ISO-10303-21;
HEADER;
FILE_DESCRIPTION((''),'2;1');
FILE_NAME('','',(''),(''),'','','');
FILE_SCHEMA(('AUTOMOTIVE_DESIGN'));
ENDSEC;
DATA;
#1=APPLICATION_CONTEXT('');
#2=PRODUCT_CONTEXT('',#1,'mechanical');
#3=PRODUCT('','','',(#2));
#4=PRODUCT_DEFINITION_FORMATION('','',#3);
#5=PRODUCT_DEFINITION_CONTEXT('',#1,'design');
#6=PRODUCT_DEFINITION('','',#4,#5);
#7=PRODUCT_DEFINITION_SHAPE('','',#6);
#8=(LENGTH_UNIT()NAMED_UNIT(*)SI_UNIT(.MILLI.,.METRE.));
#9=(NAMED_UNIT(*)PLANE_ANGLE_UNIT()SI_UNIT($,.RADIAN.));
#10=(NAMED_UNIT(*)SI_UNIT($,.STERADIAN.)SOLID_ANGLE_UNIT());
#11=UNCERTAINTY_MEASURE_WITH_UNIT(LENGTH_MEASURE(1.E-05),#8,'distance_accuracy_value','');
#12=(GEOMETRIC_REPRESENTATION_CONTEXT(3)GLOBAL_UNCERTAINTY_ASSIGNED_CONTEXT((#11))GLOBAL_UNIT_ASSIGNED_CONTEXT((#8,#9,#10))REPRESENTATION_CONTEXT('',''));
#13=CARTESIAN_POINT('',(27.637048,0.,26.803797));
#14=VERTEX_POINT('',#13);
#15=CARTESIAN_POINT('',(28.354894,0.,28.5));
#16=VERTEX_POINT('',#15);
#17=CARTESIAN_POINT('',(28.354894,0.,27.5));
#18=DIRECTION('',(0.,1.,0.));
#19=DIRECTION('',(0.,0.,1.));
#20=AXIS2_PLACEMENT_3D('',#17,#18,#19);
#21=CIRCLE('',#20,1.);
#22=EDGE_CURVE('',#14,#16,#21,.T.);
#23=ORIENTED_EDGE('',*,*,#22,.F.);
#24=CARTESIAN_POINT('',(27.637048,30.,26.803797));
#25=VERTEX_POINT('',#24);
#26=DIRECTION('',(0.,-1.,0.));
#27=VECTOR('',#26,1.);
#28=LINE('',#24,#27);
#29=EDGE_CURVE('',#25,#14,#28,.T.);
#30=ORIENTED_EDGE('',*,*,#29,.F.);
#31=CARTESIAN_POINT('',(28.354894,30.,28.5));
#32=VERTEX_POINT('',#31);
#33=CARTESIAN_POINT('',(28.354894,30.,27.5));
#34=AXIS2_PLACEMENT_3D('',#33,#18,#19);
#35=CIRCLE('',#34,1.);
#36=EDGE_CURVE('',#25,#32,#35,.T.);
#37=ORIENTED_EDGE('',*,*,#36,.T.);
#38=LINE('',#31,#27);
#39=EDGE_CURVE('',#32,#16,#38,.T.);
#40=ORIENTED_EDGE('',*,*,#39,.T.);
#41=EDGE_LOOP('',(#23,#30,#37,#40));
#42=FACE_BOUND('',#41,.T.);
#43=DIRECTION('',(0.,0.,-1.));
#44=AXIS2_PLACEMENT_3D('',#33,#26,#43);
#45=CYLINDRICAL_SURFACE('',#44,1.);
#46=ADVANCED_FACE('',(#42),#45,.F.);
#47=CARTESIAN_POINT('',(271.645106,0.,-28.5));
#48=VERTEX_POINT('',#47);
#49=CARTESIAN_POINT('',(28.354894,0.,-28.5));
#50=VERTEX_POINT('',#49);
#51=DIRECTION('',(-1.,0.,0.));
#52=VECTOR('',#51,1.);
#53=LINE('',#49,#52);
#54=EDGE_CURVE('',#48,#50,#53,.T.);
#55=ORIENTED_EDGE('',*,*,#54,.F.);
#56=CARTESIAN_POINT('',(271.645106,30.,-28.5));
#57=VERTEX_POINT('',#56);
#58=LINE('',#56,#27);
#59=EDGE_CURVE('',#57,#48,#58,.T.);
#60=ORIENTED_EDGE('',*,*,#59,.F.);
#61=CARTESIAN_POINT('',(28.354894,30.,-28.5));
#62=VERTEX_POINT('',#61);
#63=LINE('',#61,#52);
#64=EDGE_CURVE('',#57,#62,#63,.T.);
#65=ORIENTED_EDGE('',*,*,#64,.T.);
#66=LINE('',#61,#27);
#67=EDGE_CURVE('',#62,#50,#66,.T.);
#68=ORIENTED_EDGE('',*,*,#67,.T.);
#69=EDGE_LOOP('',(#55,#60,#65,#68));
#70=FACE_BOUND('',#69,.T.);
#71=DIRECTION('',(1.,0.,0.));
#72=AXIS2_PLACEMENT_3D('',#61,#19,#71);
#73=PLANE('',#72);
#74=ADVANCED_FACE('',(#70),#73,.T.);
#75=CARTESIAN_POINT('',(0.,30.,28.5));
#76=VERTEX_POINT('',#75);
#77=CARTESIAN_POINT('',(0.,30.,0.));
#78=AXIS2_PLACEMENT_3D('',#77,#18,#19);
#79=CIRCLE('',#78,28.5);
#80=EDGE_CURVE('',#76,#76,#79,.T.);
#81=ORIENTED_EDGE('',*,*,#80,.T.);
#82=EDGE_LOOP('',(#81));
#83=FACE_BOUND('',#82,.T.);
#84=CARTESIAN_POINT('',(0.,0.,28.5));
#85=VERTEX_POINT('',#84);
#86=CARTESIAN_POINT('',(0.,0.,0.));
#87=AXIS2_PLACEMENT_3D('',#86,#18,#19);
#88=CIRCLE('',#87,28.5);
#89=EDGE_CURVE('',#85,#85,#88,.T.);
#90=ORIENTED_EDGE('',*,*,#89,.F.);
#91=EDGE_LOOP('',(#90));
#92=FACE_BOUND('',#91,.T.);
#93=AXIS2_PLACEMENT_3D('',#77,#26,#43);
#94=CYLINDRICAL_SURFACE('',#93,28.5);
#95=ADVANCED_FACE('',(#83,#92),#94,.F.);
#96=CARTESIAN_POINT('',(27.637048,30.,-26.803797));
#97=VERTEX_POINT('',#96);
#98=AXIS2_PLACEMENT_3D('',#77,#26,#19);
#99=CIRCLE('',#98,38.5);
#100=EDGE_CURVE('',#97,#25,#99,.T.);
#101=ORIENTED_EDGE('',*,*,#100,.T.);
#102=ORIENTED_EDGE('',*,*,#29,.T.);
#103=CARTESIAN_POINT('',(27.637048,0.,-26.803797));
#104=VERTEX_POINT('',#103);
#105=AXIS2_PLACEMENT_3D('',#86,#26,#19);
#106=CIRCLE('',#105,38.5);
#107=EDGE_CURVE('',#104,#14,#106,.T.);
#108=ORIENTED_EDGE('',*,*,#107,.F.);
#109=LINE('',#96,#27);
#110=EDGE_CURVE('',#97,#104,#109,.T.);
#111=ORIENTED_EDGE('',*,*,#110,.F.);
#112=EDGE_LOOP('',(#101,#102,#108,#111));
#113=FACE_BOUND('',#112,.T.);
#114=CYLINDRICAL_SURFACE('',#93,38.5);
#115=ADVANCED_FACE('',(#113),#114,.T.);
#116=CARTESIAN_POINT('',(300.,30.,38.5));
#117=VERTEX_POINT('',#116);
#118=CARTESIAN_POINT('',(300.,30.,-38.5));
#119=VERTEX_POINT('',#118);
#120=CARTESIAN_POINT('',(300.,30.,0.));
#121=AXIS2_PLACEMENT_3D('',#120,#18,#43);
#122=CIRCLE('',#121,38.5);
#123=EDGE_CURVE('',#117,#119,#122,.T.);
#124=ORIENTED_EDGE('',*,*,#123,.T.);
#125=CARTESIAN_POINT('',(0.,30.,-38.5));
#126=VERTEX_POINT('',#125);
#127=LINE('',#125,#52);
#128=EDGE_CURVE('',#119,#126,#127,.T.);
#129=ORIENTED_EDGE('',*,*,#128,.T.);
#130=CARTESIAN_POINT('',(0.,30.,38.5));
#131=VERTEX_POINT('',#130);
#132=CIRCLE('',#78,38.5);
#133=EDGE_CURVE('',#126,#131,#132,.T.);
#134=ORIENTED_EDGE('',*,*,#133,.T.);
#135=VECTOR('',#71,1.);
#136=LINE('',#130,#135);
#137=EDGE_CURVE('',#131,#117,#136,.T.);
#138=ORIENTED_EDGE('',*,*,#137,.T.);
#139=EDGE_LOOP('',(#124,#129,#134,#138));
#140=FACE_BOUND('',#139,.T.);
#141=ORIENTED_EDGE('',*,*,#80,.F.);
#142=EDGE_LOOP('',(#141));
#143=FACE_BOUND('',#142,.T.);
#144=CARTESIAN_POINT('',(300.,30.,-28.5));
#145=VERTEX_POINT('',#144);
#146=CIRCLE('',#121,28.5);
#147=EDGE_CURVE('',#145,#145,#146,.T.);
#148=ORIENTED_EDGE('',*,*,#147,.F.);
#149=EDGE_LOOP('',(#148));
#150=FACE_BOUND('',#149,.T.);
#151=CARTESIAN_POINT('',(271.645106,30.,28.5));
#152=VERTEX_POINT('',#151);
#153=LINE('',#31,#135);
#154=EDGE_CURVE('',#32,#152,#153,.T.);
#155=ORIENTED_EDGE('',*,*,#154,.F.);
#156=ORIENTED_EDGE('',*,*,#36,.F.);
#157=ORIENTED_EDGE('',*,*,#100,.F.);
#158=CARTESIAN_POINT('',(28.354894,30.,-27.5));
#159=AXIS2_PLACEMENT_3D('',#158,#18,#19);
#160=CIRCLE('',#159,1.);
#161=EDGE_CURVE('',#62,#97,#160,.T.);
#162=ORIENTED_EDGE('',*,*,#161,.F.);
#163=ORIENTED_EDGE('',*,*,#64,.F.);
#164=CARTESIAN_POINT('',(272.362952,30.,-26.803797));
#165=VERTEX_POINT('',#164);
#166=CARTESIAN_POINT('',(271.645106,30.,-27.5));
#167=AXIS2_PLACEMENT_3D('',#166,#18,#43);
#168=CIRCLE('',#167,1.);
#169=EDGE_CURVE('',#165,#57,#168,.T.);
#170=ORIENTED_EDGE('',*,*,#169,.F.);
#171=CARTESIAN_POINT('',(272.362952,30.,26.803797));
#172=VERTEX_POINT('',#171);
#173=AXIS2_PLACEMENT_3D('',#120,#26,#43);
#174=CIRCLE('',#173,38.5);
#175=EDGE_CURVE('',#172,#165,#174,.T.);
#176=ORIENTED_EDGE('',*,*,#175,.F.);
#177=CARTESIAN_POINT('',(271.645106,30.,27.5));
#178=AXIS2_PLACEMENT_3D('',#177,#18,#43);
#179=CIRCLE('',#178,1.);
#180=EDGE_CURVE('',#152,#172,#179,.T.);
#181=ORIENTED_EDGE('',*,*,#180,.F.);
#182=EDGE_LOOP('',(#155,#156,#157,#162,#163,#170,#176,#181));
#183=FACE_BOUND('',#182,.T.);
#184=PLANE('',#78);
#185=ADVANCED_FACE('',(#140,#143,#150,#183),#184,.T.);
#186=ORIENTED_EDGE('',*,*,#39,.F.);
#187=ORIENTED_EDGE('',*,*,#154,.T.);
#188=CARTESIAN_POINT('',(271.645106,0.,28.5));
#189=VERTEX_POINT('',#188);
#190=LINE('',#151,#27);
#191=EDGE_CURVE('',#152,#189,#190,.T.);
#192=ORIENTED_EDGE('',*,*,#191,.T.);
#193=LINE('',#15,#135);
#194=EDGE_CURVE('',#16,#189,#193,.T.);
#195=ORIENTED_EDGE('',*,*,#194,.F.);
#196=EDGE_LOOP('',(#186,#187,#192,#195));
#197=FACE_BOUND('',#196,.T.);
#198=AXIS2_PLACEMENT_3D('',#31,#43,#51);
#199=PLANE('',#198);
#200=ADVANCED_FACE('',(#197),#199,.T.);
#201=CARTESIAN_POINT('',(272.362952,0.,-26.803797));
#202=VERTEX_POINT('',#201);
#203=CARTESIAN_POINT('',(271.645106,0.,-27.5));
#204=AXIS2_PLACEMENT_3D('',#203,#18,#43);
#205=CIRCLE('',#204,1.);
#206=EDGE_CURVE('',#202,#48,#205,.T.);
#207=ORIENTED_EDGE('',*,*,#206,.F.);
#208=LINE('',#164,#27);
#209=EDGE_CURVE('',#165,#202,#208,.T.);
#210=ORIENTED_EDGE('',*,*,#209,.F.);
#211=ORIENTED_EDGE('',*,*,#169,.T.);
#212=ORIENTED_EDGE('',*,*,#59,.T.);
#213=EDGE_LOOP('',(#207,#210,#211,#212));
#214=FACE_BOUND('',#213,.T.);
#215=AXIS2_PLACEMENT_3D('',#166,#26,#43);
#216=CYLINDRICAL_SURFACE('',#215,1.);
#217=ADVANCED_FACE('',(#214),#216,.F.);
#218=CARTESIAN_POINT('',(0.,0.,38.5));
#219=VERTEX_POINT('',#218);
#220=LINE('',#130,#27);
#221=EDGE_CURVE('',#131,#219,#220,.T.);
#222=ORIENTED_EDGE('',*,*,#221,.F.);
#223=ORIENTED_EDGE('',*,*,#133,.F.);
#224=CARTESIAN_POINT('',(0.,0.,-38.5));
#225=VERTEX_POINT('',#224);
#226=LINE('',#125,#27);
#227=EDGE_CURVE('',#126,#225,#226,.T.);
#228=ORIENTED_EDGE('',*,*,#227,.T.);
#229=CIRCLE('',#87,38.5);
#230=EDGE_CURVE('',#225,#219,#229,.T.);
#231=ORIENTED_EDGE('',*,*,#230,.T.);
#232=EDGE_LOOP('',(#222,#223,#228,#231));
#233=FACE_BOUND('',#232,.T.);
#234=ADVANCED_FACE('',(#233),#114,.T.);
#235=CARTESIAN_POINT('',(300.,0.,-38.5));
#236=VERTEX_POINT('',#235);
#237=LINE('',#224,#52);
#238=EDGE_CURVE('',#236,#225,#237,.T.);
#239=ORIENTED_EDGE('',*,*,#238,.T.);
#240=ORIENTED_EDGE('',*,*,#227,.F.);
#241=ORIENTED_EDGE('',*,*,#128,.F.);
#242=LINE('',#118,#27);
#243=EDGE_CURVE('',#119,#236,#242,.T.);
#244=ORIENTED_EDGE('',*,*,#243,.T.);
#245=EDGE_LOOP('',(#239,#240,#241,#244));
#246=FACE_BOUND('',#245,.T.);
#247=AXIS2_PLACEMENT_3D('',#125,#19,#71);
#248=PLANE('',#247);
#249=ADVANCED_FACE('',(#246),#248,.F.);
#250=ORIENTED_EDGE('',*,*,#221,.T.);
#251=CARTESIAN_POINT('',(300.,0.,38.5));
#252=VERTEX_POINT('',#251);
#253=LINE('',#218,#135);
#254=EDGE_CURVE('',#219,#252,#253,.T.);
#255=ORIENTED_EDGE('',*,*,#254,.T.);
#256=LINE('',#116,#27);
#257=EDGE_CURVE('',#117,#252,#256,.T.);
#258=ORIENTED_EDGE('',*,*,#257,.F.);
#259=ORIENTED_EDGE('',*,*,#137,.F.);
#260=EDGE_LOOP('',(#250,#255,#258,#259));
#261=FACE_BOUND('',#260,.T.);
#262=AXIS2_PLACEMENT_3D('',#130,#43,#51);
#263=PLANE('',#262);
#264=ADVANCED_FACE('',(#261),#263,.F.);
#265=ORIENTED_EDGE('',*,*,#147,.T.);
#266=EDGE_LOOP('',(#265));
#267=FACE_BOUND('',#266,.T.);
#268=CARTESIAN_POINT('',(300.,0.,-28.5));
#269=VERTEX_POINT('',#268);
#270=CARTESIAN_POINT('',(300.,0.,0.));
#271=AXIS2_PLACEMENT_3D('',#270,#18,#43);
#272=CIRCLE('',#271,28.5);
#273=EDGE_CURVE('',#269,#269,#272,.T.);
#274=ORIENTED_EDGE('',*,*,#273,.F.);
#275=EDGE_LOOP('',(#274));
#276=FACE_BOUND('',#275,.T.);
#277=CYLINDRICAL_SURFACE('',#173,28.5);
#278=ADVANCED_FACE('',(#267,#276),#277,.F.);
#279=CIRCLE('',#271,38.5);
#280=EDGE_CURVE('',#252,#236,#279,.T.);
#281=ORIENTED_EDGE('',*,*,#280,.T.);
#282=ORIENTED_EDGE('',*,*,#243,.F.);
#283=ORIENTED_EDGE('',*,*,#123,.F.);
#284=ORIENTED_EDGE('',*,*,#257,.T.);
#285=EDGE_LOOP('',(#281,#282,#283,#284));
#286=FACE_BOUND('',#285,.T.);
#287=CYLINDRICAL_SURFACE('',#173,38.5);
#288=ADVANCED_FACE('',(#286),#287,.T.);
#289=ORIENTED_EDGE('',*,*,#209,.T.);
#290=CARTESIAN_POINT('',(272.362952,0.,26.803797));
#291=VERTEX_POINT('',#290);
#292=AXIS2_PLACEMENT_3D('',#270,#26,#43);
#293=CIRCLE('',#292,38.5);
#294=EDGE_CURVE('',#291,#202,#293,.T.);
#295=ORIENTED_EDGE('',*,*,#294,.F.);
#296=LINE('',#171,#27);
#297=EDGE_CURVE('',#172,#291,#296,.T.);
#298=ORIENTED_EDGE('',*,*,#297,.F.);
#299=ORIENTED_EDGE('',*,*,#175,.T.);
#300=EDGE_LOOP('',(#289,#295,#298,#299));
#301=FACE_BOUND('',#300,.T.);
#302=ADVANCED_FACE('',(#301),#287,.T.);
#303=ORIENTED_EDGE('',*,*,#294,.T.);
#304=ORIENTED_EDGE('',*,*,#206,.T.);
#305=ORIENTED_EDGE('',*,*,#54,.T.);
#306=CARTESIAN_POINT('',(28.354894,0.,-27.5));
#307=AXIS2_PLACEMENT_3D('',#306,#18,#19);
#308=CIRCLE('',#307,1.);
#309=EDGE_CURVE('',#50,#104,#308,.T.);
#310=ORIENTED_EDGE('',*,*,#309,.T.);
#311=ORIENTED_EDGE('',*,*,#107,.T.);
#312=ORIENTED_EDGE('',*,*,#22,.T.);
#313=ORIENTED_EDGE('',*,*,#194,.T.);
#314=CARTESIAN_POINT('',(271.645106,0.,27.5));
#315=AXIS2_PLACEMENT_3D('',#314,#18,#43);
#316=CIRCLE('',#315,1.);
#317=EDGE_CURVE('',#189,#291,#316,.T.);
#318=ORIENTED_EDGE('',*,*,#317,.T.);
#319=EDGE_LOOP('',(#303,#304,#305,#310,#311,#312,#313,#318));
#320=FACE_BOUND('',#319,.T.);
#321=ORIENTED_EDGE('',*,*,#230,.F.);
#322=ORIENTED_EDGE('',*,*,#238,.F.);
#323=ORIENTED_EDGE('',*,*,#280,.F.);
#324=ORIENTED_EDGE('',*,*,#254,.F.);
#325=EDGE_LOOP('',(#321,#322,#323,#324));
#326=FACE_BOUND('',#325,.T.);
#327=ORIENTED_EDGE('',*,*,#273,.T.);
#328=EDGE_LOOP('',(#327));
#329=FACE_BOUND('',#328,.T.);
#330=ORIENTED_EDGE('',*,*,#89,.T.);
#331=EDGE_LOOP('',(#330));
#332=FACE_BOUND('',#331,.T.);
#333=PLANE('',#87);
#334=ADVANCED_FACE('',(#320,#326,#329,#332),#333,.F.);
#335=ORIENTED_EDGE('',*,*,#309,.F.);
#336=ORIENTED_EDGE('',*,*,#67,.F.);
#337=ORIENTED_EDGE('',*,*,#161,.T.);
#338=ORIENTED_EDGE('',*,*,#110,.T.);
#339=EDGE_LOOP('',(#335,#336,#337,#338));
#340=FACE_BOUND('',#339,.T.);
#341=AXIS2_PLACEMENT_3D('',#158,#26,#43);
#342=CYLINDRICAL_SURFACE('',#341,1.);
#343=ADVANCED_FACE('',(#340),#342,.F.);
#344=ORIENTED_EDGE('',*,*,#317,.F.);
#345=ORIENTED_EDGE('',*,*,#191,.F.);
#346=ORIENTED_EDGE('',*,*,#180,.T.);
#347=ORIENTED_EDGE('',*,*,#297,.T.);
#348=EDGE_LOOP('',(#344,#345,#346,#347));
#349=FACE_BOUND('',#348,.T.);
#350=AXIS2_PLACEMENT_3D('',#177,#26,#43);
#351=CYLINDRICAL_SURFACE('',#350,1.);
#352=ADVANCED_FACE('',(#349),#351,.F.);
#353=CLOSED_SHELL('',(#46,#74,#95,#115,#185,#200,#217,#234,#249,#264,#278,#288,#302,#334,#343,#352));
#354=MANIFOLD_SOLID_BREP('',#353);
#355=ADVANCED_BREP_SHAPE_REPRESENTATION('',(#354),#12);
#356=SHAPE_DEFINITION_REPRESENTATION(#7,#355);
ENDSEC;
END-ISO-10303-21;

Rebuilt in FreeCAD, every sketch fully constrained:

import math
import FreeCAD as App
import Part
import Sketcher
from FreeCAD import Vector

doc = App.newDocument("Part")
params = doc.addObject("Spreadsheet::Sheet", "Params")
for row, (alias, value) in enumerate([
    ("sketch1_diameter", "57 mm"),
    ("sketch1_radius", "1 mm"),
    ("sketch1_radius2", "38.5 mm"),
    ("sketch1_width", "300 mm"),
    ("pad1_length", "30 mm"),
], start=1):
    params.set(f"A{row}", alias)
    params.set(f"B{row}", "=" + value)
    params.setAlias(f"B{row}", alias)

body = doc.addObject("PartDesign::Body", "Body")

# Sketch on XZ plane
sketch1 = body.newObject("Sketcher::SketchObject", "Sketch")
sketch1.AttachmentSupport = (doc.getObject("XZ_Plane"), [""])
sketch1.MapMode = "FlatFace"
sketch1.addGeometry(Part.LineSegment(Vector(0, 38.5, 0), Vector(300, 38.5, 0)), False)
sketch1.addGeometry(Part.ArcOfCircle(Part.Circle(Vector(300, 0, 0), Vector(0, 0, 1), 38.5), math.radians(-90), math.radians(90)), False)
sketch1.addGeometry(Part.LineSegment(Vector(300, -38.5, 0), Vector(0, -38.5, 0)), False)
sketch1.addGeometry(Part.ArcOfCircle(Part.Circle(Vector(0, 0, 0), Vector(0, 0, 1), 38.5), math.radians(90), math.radians(270)), False)
sketch1.addGeometry(Part.Circle(Vector(0, 0, 0), Vector(0, 0, 1), 28.5), False)
sketch1.addGeometry(Part.LineSegment(Vector(271.645106, 28.5, 0), Vector(28.354894, 28.5, 0)), False)
sketch1.addGeometry(Part.ArcOfCircle(Part.Circle(Vector(28.354894, 27.5, 0), Vector(0, 0, 1), 1), math.radians(90), math.radians(224.123121)), False)
sketch1.addGeometry(Part.ArcOfCircle(Part.Circle(Vector(0, 0, 0), Vector(0, 0, 1), 38.5), math.radians(-44.123121), math.radians(44.123121)), False)
sketch1.addGeometry(Part.ArcOfCircle(Part.Circle(Vector(28.354894, -27.5, 0), Vector(0, 0, 1), 1), math.radians(135.876879), math.radians(270)), False)
sketch1.addGeometry(Part.LineSegment(Vector(28.354894, -28.5, 0), Vector(271.645106, -28.5, 0)), False)
sketch1.addGeometry(Part.ArcOfCircle(Part.Circle(Vector(271.645106, -27.5, 0), Vector(0, 0, 1), 1), math.radians(-90), math.radians(44.123121)), False)
sketch1.addGeometry(Part.ArcOfCircle(Part.Circle(Vector(300, 0, 0), Vector(0, 0, 1), 38.5), math.radians(135.876879), math.radians(224.123121)), False)
sketch1.addGeometry(Part.ArcOfCircle(Part.Circle(Vector(271.645106, 27.5, 0), Vector(0, 0, 1), 1), math.radians(-44.123121), math.radians(90)), False)
sketch1.addGeometry(Part.Circle(Vector(300, 0, 0), Vector(0, 0, 1), 28.5), False)
sketch1.addConstraint(Sketcher.Constraint("Tangent", 0, 2, 1, 2))
sketch1.addConstraint(Sketcher.Constraint("Tangent", 1, 1, 2, 1))
sketch1.addConstraint(Sketcher.Constraint("Tangent", 2, 2, 3, 2))
sketch1.addConstraint(Sketcher.Constraint("Tangent", 3, 1, 0, 1))
sketch1.addConstraint(Sketcher.Constraint("Tangent", 5, 2, 6, 1))
sketch1.addConstraint(Sketcher.Constraint("Tangent", 6, 2, 7, 2))
sketch1.addConstraint(Sketcher.Constraint("Tangent", 7, 1, 8, 1))
sketch1.addConstraint(Sketcher.Constraint("Tangent", 8, 2, 9, 1))
sketch1.addConstraint(Sketcher.Constraint("Tangent", 9, 2, 10, 1))
sketch1.addConstraint(Sketcher.Constraint("Tangent", 10, 2, 11, 2))
sketch1.addConstraint(Sketcher.Constraint("Tangent", 11, 1, 12, 1))
sketch1.addConstraint(Sketcher.Constraint("Tangent", 12, 2, 5, 1))
sketch1.addConstraint(Sketcher.Constraint("Horizontal", 0))
sketch1.addConstraint(Sketcher.Constraint("Horizontal", 2))
sketch1.addConstraint(Sketcher.Constraint("Horizontal", 5))
sketch1.addConstraint(Sketcher.Constraint("Horizontal", 9))
sketch1.addConstraint(Sketcher.Constraint("Coincident", 3, 3, -1, 1))
sketch1.addConstraint(Sketcher.Constraint("Coincident", 4, 3, -1, 1))
sketch1.addConstraint(Sketcher.Constraint("Coincident", 7, 3, -1, 1))
sketch1.addConstraint(Sketcher.Constraint("Coincident", 11, 3, 1, 3))
sketch1.addConstraint(Sketcher.Constraint("Coincident", 13, 3, 1, 3))
sketch1.addConstraint(Sketcher.Constraint("Equal", 3, 7))
sketch1.addConstraint(Sketcher.Constraint("Equal", 6, 8))
sketch1.addConstraint(Sketcher.Constraint("Equal", 8, 10))
sketch1.addConstraint(Sketcher.Constraint("Equal", 7, 11))
sketch1.addConstraint(Sketcher.Constraint("Equal", 10, 12))
sketch1.addConstraint(Sketcher.Constraint("Equal", 4, 13))
sketch1.addConstraint(Sketcher.Constraint("Vertical", 6, 3, 8, 3))
sketch1.addConstraint(Sketcher.Constraint("Diameter", 4, 57.0))
sketch1.addConstraint(Sketcher.Constraint("Radius", 6, 1.0))
sketch1.addConstraint(Sketcher.Constraint("Radius", 1, 38.5))
sketch1.addConstraint(Sketcher.Constraint("DistanceX", 0, 1, 0, 2, 300.0))
sketch1.addConstraint(Sketcher.Constraint("DistanceY", 8, 3, 6, 3, 55.0))
sketch1.setExpression("Constraints[28]", "Params.sketch1_diameter")
sketch1.setExpression("Constraints[29]", "Params.sketch1_radius")
sketch1.setExpression("Constraints[30]", "Params.sketch1_radius2")
sketch1.setExpression("Constraints[31]", "Params.sketch1_width")
pad1 = body.newObject("PartDesign::Pad", "Pad")
pad1.Profile = sketch1
pad1.setExpression("Length", "Params.pad1_length")
pad1.Reversed = True

doc.recompute()
